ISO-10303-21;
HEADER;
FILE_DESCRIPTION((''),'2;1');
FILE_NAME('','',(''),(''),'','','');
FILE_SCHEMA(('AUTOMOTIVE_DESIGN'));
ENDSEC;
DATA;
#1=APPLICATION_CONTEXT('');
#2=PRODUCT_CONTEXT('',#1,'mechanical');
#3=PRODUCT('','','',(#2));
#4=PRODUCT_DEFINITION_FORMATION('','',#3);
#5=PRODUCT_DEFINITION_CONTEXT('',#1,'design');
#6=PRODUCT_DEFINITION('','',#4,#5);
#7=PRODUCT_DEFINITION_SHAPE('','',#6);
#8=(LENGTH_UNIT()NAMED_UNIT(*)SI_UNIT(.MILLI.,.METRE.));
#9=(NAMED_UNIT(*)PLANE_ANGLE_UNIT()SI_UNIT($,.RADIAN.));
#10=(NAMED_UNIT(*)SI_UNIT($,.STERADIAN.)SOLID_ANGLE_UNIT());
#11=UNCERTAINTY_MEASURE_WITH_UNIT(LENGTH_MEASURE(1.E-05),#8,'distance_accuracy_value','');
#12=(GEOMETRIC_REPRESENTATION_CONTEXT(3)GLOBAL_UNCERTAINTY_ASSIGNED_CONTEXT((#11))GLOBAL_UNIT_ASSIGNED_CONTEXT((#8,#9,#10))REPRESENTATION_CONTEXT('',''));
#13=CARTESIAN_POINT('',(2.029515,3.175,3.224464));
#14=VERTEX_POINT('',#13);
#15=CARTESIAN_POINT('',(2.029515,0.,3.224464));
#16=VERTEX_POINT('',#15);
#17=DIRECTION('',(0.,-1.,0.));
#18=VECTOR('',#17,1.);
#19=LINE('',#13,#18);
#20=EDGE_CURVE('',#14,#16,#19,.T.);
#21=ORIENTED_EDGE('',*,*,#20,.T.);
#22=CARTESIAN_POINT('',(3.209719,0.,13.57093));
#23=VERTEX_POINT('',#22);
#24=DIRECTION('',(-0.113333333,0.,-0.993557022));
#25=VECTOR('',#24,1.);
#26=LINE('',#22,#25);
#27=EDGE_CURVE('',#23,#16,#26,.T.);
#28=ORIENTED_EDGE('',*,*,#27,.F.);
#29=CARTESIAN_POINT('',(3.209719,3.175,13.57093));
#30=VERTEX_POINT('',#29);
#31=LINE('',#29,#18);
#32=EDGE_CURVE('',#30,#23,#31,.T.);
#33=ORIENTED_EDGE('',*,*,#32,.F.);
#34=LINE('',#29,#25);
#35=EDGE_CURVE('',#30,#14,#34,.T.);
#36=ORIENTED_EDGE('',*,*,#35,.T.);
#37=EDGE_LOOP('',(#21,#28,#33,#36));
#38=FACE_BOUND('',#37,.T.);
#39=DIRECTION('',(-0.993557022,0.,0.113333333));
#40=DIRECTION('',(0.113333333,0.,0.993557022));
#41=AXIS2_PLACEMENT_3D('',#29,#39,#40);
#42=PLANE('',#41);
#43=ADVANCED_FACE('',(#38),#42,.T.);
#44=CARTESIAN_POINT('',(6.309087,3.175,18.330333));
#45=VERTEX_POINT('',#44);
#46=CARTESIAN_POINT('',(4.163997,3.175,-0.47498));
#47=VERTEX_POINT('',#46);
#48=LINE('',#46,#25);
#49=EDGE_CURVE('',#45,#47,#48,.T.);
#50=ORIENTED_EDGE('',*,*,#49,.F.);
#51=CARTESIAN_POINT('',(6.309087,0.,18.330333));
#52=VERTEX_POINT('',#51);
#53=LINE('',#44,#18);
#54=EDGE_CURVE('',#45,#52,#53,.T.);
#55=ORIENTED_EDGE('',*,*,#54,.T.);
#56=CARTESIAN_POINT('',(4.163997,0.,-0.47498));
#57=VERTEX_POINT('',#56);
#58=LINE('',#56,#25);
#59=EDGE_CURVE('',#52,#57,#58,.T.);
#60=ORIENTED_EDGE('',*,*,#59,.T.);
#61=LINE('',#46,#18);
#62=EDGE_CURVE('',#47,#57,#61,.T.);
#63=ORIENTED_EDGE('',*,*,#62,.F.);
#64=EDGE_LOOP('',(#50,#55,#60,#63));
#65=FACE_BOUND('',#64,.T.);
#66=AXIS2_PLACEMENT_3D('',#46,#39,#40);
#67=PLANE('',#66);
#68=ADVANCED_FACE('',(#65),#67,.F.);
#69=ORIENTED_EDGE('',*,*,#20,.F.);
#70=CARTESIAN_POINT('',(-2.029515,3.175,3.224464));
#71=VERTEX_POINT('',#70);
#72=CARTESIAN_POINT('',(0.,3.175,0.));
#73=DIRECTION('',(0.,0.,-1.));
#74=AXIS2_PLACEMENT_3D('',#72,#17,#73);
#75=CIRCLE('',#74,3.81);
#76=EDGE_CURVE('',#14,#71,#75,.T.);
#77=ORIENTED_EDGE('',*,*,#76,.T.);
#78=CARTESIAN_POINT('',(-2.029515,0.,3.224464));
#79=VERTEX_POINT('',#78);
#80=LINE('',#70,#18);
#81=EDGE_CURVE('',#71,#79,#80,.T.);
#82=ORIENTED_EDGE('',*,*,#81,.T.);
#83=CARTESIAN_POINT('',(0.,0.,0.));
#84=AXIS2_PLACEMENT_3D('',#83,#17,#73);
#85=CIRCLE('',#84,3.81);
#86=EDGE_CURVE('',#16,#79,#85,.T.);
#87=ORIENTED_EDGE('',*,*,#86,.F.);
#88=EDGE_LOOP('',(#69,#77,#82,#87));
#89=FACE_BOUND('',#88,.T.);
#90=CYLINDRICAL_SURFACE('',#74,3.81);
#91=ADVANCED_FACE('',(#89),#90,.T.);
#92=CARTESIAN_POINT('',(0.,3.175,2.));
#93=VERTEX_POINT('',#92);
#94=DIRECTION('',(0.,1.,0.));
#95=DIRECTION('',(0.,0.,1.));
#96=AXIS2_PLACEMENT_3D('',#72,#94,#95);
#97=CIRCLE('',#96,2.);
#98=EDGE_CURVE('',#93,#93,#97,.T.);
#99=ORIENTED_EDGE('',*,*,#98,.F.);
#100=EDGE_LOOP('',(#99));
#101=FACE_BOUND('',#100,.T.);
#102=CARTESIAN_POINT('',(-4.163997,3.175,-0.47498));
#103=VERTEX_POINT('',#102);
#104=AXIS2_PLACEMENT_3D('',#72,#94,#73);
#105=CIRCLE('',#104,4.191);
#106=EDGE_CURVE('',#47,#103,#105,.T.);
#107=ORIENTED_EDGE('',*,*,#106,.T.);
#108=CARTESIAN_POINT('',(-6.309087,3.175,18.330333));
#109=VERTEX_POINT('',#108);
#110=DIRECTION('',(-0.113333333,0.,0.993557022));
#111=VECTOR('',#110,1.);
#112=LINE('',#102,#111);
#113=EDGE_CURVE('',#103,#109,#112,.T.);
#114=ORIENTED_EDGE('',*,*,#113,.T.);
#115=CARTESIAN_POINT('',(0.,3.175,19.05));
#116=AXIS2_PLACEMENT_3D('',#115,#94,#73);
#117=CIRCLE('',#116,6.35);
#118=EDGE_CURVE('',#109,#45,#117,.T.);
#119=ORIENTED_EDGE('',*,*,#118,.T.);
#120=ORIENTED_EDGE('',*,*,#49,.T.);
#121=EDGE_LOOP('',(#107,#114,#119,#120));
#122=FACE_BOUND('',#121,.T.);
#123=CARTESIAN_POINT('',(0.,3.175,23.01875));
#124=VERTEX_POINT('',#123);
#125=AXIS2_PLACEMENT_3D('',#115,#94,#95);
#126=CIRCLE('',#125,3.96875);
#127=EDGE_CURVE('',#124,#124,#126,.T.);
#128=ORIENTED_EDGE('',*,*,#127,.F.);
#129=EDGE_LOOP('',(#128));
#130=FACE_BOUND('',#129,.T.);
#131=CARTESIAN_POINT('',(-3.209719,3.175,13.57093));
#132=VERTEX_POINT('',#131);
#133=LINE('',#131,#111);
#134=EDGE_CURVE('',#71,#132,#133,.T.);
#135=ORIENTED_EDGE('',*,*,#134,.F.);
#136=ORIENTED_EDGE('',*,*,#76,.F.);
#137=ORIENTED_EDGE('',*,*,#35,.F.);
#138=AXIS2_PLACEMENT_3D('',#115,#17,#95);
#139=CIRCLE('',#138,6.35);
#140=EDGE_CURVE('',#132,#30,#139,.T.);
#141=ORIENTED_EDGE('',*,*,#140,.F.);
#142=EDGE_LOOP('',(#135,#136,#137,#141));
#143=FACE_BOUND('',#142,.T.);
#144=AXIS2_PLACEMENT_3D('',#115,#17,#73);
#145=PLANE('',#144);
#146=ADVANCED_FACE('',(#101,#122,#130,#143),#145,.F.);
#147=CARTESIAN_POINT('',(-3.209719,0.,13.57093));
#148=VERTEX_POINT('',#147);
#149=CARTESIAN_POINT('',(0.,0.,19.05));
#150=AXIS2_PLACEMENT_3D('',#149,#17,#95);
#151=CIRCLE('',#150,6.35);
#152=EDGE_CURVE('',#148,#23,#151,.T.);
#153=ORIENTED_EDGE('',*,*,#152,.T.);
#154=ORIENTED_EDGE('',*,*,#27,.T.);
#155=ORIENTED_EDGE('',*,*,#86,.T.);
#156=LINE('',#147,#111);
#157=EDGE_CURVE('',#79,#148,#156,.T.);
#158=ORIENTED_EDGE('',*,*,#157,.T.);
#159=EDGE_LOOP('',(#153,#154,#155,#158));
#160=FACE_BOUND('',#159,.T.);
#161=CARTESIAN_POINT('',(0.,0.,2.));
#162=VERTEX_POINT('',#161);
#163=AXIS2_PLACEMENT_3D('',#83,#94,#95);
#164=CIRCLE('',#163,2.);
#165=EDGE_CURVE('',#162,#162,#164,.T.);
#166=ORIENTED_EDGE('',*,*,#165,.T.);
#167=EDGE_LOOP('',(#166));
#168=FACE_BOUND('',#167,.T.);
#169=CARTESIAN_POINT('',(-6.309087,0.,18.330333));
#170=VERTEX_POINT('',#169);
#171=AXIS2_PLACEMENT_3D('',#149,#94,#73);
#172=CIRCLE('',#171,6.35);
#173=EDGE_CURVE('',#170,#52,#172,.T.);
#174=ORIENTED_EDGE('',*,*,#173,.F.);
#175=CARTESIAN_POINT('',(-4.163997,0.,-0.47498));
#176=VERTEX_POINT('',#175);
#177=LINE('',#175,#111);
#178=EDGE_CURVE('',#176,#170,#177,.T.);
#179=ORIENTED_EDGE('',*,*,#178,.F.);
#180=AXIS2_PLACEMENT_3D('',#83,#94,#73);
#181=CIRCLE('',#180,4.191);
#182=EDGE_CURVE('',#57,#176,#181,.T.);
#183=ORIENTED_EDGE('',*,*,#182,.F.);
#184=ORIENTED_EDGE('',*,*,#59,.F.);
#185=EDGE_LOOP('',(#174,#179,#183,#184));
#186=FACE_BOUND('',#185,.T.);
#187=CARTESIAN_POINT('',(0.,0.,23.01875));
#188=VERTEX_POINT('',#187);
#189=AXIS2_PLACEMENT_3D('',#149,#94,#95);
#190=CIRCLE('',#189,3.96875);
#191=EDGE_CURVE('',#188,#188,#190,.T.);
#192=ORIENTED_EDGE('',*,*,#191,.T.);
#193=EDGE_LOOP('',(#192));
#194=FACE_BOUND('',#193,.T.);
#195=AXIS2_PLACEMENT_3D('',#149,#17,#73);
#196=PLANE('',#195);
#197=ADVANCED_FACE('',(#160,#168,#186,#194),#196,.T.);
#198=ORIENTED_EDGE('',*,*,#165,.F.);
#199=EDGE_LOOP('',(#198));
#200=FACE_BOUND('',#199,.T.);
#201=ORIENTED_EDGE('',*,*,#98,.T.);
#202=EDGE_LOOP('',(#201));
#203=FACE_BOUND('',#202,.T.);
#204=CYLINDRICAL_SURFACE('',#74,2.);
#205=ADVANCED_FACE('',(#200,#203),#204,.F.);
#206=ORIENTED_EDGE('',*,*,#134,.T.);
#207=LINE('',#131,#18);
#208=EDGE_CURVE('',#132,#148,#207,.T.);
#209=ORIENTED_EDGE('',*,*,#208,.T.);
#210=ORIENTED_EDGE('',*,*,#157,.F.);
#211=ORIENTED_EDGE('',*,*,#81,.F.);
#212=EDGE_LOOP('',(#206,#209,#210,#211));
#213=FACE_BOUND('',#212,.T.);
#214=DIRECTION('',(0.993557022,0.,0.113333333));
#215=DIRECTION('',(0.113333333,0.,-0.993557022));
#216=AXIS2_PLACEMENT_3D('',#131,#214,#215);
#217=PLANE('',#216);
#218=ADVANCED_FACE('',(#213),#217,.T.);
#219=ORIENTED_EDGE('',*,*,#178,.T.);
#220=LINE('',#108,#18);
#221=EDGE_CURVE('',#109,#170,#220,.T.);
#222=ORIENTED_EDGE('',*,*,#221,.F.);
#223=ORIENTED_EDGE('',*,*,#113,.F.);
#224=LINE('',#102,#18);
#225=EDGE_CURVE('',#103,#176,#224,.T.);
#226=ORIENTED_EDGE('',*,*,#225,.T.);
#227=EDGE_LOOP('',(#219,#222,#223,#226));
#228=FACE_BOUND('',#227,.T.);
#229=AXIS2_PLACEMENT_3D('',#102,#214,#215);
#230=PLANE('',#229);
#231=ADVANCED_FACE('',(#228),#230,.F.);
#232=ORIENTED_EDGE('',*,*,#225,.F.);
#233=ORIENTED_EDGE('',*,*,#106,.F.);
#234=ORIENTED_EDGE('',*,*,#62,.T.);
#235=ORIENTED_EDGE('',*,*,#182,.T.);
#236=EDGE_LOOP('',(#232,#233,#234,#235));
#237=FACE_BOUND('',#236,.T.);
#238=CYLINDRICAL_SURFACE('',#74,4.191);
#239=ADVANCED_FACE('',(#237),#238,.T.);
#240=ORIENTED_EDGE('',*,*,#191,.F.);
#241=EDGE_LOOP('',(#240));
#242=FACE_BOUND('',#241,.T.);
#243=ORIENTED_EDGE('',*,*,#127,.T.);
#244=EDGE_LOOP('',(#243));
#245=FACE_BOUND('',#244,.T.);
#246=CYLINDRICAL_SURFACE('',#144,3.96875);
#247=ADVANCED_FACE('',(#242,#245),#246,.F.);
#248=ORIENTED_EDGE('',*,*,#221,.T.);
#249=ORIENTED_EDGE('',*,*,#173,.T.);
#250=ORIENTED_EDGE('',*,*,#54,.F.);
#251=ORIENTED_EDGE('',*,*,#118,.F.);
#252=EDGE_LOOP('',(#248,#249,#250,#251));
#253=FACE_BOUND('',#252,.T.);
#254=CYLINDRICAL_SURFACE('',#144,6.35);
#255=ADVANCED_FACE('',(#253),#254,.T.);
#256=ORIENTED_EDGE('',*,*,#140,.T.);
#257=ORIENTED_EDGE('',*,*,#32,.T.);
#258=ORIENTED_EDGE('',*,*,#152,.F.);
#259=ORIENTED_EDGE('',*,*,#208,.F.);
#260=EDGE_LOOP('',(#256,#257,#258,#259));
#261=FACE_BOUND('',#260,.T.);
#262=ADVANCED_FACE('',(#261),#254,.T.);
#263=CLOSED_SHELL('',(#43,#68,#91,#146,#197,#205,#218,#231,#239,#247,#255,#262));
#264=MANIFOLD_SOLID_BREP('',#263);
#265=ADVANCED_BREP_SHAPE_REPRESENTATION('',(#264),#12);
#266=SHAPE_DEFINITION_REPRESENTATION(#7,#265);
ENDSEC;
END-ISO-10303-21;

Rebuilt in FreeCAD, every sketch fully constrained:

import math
import FreeCAD as App
import Part
import Sketcher

V = App.Vector
Q = App.Units.Quantity

doc = App.newDocument("Part")
body = doc.addObject("PartDesign::Body", "Body")

# Sketch on XZ plane
sketch1 = doc.addObject("Sketcher::SketchObject", "Sketch")
body.addObject(sketch1)
sketch1.AttachmentSupport = (doc.XZ_Plane, [""])
sketch1.MapMode = "FlatFace"
sketch1.addGeometry([
    Part.LineSegment(V(6.309087, 18.330333, 0), V(4.163997, -0.47498, 0)),  # 0
    Part.ArcOfCircle(Part.Circle(V(0, 0, 0), V(0, 0, 1), 4.191), math.radians(-173.492496), math.radians(-6.507504)),  # 1
    Part.LineSegment(V(-4.163997, -0.47498, 0), V(-6.309087, 18.330333, 0)),  # 2
    Part.ArcOfCircle(Part.Circle(V(0, 19.05, 0), V(0, 0, 1), 6.35), math.radians(-6.507504), math.radians(186.507504)),  # 3
    Part.Circle(V(0, 19.05, 0), V(0, 0, 1), 3.96875),  # 4
    Part.ArcOfCircle(Part.Circle(V(0, 19.05, 0), V(0, 0, 1), 6.35), math.radians(-120.362394), math.radians(-59.637606)),  # 5
    Part.LineSegment(V(-3.209719, 13.57093, 0), V(-2.029515, 3.224464, 0)),  # 6
    Part.ArcOfCircle(Part.Circle(V(0, 0, 0), V(0, 0, 1), 3.81), math.radians(57.813208), math.radians(122.186792)),  # 7
    Part.LineSegment(V(2.029515, 3.224464, 0), V(3.209719, 13.57093, 0)),  # 8
    Part.Circle(V(0, 0, 0), V(0, 0, 1), 2),  # 9
], False)
sketch1.addConstraint([
    Sketcher.Constraint("Tangent", 0, 2, 1, 2),
    Sketcher.Constraint("Tangent", 1, 1, 2, 1),
    Sketcher.Constraint("Tangent", 2, 2, 3, 2),
    Sketcher.Constraint("Tangent", 3, 1, 0, 1),
    Sketcher.Constraint("Coincident", 5, 1, 6, 1),
    Sketcher.Constraint("Coincident", 6, 2, 7, 2),
    Sketcher.Constraint("Coincident", 7, 1, 8, 1),
    Sketcher.Constraint("Coincident", 8, 2, 5, 2),
    Sketcher.Constraint("Coincident", 1, 3, -1, 1),
    Sketcher.Constraint("Coincident", 7, 3, -1, 1),
    Sketcher.Constraint("Coincident", 9, 3, -1, 1),
    Sketcher.Constraint("Coincident", 4, 3, 3, 3),
    Sketcher.Constraint("Coincident", 5, 3, 3, 3),
    Sketcher.Constraint("Equal", 3, 5),
    Sketcher.Constraint("Symmetric", 5, 1, 8, 2, -2),
    Sketcher.Constraint("Parallel", 2, 6),
    Sketcher.Constraint("Parallel", 0, 8),
    Sketcher.Constraint("Radius", 3, Q("0.25 in")),
    Sketcher.Constraint("Radius", 7, Q("0.15 in")),
    Sketcher.Constraint("Diameter", 4, Q("0.3125 in")),
    Sketcher.Constraint("Radius", 1, Q("0.165 in")),
    Sketcher.Constraint("Diameter", 9, 4.0),
    Sketcher.Constraint("DistanceY", -1, 1, 3, 3, Q("0.75 in")),
    Sketcher.Constraint("Distance", 6, 10.413561),
])
pad1 = doc.addObject("PartDesign::Pad", "Pad")
body.addObject(pad1)
pad1.Profile = sketch1
pad1.Length = Q("0.125 in")
pad1.Reversed = True

doc.recompute()
